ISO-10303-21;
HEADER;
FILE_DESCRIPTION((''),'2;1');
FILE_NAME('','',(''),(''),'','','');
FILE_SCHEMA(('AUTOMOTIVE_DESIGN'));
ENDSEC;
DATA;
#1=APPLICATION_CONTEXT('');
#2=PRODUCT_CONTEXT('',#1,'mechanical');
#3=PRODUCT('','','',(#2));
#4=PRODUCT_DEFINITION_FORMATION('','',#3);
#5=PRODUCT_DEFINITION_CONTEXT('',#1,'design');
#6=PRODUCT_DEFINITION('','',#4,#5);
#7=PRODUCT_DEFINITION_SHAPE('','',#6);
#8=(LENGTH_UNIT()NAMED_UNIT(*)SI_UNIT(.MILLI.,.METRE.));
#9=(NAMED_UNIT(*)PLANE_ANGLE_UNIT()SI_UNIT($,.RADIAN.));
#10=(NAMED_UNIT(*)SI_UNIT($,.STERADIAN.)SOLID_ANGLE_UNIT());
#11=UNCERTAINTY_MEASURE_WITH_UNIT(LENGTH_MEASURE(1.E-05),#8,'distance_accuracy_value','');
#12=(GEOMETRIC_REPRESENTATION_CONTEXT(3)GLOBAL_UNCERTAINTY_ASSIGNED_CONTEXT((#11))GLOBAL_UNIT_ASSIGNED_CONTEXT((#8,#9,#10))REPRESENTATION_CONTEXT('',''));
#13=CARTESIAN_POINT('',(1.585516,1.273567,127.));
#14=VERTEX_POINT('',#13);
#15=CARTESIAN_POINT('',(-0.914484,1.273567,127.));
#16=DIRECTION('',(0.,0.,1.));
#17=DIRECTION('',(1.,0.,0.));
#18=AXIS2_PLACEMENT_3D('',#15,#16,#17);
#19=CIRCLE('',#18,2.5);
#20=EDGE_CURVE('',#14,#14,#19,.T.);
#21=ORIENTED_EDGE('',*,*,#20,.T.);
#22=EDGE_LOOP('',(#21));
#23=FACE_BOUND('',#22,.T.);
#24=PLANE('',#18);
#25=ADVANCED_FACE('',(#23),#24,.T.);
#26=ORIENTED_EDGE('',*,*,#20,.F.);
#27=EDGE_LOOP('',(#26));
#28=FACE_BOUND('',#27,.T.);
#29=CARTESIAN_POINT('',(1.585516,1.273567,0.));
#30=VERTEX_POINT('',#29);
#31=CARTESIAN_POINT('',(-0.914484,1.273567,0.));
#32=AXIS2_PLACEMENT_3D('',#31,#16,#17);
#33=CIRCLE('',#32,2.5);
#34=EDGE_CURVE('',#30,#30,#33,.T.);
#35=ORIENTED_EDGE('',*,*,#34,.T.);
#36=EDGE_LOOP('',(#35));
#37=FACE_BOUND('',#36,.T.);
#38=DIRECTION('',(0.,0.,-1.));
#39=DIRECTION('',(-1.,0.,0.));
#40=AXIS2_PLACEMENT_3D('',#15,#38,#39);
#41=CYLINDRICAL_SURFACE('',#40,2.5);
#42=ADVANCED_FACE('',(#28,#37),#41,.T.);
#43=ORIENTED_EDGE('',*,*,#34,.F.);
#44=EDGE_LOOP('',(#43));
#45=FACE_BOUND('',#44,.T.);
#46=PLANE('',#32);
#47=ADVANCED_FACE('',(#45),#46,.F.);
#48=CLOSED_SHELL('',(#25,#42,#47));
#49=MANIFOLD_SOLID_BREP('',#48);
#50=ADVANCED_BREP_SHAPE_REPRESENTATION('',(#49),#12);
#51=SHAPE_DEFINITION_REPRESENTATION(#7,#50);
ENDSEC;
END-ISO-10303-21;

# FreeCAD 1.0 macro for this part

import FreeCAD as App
import Part
import Sketcher

V = App.Vector

doc = App.newDocument("Part")
body = doc.addObject("PartDesign::Body", "Body")

# Sketch on XY plane
sketch1 = body.newObject("Sketcher::SketchObject", "Sketch")
sketch1.AttachmentSupport = (doc.getObject("XY_Plane"), [""])
sketch1.MapMode = "FlatFace"
sketch1.addGeometry(Part.Circle(V(-0.9, 1.3, 0), V(0, 0, 1), 2.5), False)
sketch1.addConstraint([
    Sketcher.Constraint("Diameter", 0, 5.0),
    Sketcher.Constraint("DistanceX", 0, 3, -1, 1, 0.914484),
    Sketcher.Constraint("DistanceY", -1, 1, 0, 3, 1.273567),
])
pad1 = body.newObject("PartDesign::Pad", "Pad")
pad1.Profile = sketch1
pad1.Length = 127

doc.recompute()
